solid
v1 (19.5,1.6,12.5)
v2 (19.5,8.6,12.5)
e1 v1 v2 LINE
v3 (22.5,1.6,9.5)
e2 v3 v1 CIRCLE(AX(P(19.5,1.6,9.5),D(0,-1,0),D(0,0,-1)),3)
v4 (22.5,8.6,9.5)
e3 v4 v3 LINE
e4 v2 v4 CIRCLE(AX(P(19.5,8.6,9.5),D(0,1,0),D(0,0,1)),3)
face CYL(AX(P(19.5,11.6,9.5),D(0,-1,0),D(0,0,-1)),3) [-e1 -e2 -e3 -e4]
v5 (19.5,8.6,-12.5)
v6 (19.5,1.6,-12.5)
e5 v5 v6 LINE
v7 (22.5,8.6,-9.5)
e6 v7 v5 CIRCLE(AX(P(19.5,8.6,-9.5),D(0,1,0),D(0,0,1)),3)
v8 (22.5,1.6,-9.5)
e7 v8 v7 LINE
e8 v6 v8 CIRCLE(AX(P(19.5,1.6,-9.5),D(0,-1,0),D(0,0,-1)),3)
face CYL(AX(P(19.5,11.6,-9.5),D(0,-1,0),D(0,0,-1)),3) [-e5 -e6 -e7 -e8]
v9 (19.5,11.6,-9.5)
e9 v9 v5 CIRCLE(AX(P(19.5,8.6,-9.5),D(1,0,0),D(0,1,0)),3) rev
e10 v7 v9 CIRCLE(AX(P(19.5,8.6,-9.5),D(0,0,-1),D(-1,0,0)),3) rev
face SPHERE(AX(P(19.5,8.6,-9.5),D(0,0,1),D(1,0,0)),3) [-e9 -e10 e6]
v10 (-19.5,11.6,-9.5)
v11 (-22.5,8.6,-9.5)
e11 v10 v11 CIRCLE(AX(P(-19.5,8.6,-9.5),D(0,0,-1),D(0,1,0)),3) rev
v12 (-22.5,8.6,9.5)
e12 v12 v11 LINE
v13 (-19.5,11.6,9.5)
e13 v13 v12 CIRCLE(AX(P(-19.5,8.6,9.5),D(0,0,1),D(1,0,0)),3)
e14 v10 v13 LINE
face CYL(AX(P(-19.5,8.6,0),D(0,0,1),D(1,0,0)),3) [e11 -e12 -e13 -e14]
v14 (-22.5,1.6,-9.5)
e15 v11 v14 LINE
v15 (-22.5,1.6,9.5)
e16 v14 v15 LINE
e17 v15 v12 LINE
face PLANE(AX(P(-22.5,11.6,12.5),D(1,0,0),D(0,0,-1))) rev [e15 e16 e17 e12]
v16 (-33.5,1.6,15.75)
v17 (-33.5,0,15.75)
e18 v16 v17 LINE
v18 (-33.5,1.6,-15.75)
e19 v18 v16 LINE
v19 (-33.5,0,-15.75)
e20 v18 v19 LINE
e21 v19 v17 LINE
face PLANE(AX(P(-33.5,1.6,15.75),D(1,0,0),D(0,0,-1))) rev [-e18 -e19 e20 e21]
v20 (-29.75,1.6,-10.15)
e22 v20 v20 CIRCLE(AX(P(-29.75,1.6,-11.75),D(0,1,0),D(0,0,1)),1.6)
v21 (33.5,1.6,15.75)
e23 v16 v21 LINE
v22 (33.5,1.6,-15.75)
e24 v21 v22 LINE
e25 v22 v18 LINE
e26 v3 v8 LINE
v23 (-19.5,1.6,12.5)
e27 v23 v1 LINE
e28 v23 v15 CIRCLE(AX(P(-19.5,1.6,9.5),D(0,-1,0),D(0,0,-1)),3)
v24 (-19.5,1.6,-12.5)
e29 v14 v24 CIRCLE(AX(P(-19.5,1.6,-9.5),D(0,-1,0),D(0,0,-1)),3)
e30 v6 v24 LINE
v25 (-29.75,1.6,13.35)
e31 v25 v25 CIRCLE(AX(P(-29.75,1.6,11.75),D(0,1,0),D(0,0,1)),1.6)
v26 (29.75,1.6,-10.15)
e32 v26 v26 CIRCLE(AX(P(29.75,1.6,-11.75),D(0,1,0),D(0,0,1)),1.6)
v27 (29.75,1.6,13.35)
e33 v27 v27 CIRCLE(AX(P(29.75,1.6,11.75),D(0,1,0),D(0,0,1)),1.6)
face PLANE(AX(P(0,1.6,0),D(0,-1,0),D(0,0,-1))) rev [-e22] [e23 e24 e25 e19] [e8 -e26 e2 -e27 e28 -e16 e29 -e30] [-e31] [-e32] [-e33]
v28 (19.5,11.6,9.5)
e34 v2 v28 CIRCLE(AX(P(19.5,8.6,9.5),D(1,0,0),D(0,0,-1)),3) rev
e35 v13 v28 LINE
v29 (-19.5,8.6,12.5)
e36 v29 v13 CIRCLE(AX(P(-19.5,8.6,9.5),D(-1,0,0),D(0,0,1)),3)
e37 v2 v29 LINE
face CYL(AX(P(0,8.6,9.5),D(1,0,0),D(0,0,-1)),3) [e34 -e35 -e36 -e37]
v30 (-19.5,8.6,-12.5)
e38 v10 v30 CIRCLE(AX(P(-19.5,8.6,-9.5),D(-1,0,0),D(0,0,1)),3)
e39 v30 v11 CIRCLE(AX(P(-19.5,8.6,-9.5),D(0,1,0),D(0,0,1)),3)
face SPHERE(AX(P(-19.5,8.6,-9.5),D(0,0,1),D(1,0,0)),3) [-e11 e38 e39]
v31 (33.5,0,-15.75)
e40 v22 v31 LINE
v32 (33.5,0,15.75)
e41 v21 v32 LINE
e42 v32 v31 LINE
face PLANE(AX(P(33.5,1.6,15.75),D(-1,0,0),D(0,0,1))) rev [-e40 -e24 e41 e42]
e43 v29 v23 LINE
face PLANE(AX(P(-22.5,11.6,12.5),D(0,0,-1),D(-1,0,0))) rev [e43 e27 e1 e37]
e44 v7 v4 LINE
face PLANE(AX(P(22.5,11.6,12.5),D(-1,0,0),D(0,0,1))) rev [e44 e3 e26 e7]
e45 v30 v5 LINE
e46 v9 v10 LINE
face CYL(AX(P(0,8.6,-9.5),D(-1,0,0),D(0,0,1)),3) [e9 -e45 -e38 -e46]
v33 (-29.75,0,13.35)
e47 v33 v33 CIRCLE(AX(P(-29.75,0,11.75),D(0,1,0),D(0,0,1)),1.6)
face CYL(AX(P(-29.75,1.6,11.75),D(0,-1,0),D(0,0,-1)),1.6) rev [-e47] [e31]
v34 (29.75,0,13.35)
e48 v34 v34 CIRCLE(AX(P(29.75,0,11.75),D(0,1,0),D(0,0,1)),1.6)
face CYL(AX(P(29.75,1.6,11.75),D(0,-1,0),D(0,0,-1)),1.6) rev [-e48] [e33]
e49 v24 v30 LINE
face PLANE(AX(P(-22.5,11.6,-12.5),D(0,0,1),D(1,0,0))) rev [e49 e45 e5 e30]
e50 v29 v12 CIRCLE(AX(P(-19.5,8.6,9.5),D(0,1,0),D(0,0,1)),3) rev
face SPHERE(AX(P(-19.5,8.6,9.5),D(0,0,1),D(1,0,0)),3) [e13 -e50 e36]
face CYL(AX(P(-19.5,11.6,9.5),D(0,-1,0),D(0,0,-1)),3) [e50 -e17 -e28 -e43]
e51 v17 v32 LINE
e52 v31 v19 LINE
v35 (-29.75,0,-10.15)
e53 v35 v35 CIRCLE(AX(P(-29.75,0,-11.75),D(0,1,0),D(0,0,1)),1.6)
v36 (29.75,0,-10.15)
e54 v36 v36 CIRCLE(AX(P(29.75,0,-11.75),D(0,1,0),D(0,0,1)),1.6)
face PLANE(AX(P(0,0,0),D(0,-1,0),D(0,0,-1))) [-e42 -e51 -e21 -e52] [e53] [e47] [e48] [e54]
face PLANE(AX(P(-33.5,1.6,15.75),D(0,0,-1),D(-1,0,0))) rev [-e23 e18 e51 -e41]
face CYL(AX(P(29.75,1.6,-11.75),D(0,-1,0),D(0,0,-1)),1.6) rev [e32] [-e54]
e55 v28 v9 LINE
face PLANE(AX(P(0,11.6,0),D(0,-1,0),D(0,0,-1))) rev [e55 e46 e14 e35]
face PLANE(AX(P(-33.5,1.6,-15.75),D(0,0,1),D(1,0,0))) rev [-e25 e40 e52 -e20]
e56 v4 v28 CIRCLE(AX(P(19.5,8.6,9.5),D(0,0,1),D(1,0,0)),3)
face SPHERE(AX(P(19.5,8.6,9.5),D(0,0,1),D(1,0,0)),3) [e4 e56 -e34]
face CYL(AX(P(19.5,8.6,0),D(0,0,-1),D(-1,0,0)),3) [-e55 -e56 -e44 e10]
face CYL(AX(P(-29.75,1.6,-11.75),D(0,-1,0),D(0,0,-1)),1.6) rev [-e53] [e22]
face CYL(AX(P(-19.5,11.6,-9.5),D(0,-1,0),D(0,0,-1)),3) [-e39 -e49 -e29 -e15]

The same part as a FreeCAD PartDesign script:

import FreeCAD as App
import Part
import Sketcher
from FreeCAD import Vector
Q = App.Units.Quantity


def edges_at(feature, points):
    """Names of the edges that pass closest to the given points."""
    edges = feature.Shape.Edges
    near = lambda p: min(range(len(edges)), key=lambda i: edges[i].distToShape(Part.Vertex(*p))[0])
    return sorted({f"Edge{near(p) + 1}" for p in points})


def add_polygon(sketch, points):
    """Adds a closed chain of lines whose ends are joined by coincident constraints."""
    first, n = sketch.GeometryCount, len(points)
    for a, b in zip(points, points[1:] + points[:1]):
        sketch.addGeometry(Part.LineSegment(App.Vector(*a, 0), App.Vector(*b, 0)), False)
    for i in range(n):
        sketch.addConstraint(Sketcher.Constraint("Coincident", first + i, 2, first + (i + 1) % n, 1))

doc = App.newDocument("Part")
body = doc.addObject("PartDesign::Body", "Body")

# Sketch on XZ plane
sketch1 = body.newObject("Sketcher::SketchObject", "Sketch")
sketch1.AttachmentSupport = (doc.getObject("XZ_Plane"), [""])
sketch1.MapMode = "FlatFace"
add_polygon(sketch1, [(-33.5, -15.8), (-33.5, 15.8), (33.5, 15.8), (33.5, -15.8)])  # lines 0-3
sketch1.addGeometry(Part.Circle(Vector(-29.8, 11.8, 0), Vector(0, 0, 1), 1.6), False)  # 4
sketch1.addGeometry(Part.Circle(Vector(29.8, 11.8, 0), Vector(0, 0, 1), 1.6), False)  # 5
sketch1.addGeometry(Part.Circle(Vector(-29.8, -11.8, 0), Vector(0, 0, 1), 1.6), False)  # 6
sketch1.addGeometry(Part.Circle(Vector(29.8, -11.8, 0), Vector(0, 0, 1), 1.6), False)  # 7
sketch1.addConstraint([
    Sketcher.Constraint("Vertical", 0),
    Sketcher.Constraint("Horizontal", 1),
    Sketcher.Constraint("Vertical", 2),
    Sketcher.Constraint("Horizontal", 3),
    Sketcher.Constraint("Equal", 4, 5),
    Sketcher.Constraint("Equal", 5, 6),
    Sketcher.Constraint("Equal", 6, 7),
    Sketcher.Constraint("Symmetric", 5, 3, 6, 3, -1, 1),
    Sketcher.Constraint("Symmetric", 4, 3, 7, 3, -1, 1),
    Sketcher.Constraint("Symmetric", 0, 2, 2, 2, -1, 1),
    Sketcher.Constraint("Symmetric", 4, 3, 5, 3, -2),
    Sketcher.Constraint("Diameter", 4, Q("3.2 mm")),
    Sketcher.Constraint("DistanceX", 1, 1, 1, 2, Q("67 mm")),
    Sketcher.Constraint("DistanceY", 0, 1, 0, 2, Q("31.5 mm")),
    Sketcher.Constraint("DistanceY", 4, 3, 0, 2, Q("4 mm")),
    Sketcher.Constraint("DistanceX", 4, 3, 5, 3, Q("59.5 mm")),
])
pad1 = body.newObject("PartDesign::Pad", "Pad")
pad1.Profile = sketch1
pad1.Length = 1.6
pad1.Reversed = True

# Sketch on XZ plane
sketch2 = body.newObject("Sketcher::SketchObject", "Sketch001")
sketch2.AttachmentSupport = (doc.getObject("XZ_Plane"), [""])
sketch2.MapMode = "FlatFace"
sketch2.AttachmentOffset = App.Placement(Vector(0, 0, -1.6), App.Rotation())
add_polygon(sketch2, [(-22, -12), (-22, 12), (22, 12), (22, -12)])  # lines 0-3
sketch2.addConstraint([
    Sketcher.Constraint("Vertical", 0),
    Sketcher.Constraint("Horizontal", 1),
    Sketcher.Constraint("Vertical", 2),
    Sketcher.Constraint("Horizontal", 3),
    Sketcher.Constraint("Symmetric", 0, 2, 2, 2, -1, 1),
    Sketcher.Constraint("DistanceX", 1, 1, 1, 2, Q("45 mm")),
    Sketcher.Constraint("DistanceY", 0, 1, 0, 2, Q("25 mm")),
])
pad2 = body.newObject("PartDesign::Pad", "Pad001")
pad2.Profile = sketch2
pad2.Length = 10
pad2.Reversed = True
doc.recompute()

fillet = body.newObject("PartDesign::Fillet", "Fillet")
fillet.Base = (pad2, edges_at(pad2, [
    (22.5, 6.6, 12.5),
    (22.5, 6.6, -12.5),
    (-22.5, 6.6, -12.5),
    (-22.5, 6.6, 12.5),
    (22.5, 11.6, 0),
    (0, 11.6, -12.5),
    (-22.5, 11.6, 0),
    (0, 11.6, 12.5),
]))
fillet.Radius = 3

doc.recompute()
